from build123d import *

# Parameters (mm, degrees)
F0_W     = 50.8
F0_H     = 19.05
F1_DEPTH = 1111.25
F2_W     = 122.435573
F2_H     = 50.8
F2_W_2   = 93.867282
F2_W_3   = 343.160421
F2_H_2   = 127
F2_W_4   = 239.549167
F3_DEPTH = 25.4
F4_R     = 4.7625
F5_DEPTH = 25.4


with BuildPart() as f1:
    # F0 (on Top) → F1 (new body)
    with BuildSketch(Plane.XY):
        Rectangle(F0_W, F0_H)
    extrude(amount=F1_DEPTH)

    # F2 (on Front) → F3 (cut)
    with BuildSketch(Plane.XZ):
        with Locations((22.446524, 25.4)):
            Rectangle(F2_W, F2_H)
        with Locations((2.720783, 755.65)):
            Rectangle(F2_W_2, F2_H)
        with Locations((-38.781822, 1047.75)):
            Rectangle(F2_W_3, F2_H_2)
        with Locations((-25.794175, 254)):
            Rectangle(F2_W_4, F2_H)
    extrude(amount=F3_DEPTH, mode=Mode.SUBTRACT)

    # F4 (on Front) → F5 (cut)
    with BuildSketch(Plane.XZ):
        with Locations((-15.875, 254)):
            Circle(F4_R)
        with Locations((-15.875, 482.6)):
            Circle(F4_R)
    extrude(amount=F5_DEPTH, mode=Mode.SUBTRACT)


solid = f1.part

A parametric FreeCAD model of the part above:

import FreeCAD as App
import Part
import Sketcher
Q = App.Units.Quantity

doc = App.newDocument("Part")
body = doc.addObject("PartDesign::Body", "Body")

sketch1 = body.newObject("Sketcher::SketchObject", "Sketch")
sketch1.AttachmentSupport = (doc.getObject("XY_Plane"), [""])
sketch1.MapMode = "FlatFace"
sketch1.addGeometry([
    Part.LineSegment(App.Vector(-25, 10, 0), App.Vector(-25, -10, 0)),
    Part.LineSegment(App.Vector(-25, -10, 0), App.Vector(25, -10, 0)),
    Part.LineSegment(App.Vector(25, -10, 0), App.Vector(25, 10, 0)),
    Part.LineSegment(App.Vector(25, 10, 0), App.Vector(-25, 10, 0)),
], False)
sketch1.addConstraint([
    Sketcher.Constraint("Coincident", 0, 2, 1, 1),
    Sketcher.Constraint("Coincident", 1, 2, 2, 1),
    Sketcher.Constraint("Coincident", 2, 2, 3, 1),
    Sketcher.Constraint("Coincident", 3, 2, 0, 1),
    Sketcher.Constraint("Vertical", 0),
    Sketcher.Constraint("Horizontal", 1),
    Sketcher.Constraint("Vertical", 2),
    Sketcher.Constraint("Horizontal", 3),
    Sketcher.Constraint("Symmetric", 0, 2, 2, 2, -1, 1),
    Sketcher.Constraint("DistanceX", 1, 1, 1, 2, Q("2 in")),
    Sketcher.Constraint("DistanceY", 0, 2, 0, 1, Q("0.75 in")),
])
pad1 = body.newObject("PartDesign::Pad", "Pad")
pad1.Profile = sketch1
pad1.Length = Q("43.75 in")

sketch2 = body.newObject("Sketcher::SketchObject", "Sketch001")
sketch2.AttachmentSupport = (doc.getObject("XZ_Plane"), [""])
sketch2.MapMode = "FlatFace"
sketch2.addGeometry([
    Part.LineSegment(App.Vector(-39, 51, 0), App.Vector(-39, 0, 0)),
    Part.LineSegment(App.Vector(-39, 0, 0), App.Vector(84, 0, 0)),
    Part.LineSegment(App.Vector(84, 0, 0), App.Vector(84, 51, 0)),
    Part.LineSegment(App.Vector(84, 51, 0), App.Vector(-39, 51, 0)),
    Part.LineSegment(App.Vector(-44, 781, 0), App.Vector(-44, 730, 0)),
    Part.LineSegment(App.Vector(-44, 730, 0), App.Vector(50, 730, 0)),
    Part.LineSegment(App.Vector(50, 730, 0), App.Vector(50, 781, 0)),
    Part.LineSegment(App.Vector(50, 781, 0), App.Vector(-44, 781, 0)),
    Part.LineSegment(App.Vector(-210, 1111, 0), App.Vector(-210, 984, 0)),
    Part.LineSegment(App.Vector(-210, 984, 0), App.Vector(133, 984, 0)),
    Part.LineSegment(App.Vector(133, 984, 0), App.Vector(133, 1111, 0)),
    Part.LineSegment(App.Vector(133, 1111, 0), App.Vector(-210, 1111, 0)),
    Part.LineSegment(App.Vector(-146, 279, 0), App.Vector(-146, 229, 0)),
    Part.LineSegment(App.Vector(-146, 229, 0), App.Vector(94, 229, 0)),
    Part.LineSegment(App.Vector(94, 229, 0), App.Vector(94, 279, 0)),
    Part.LineSegment(App.Vector(94, 279, 0), App.Vector(-146, 279, 0)),
], False)
sketch2.addConstraint([
    Sketcher.Constraint("Coincident", 0, 2, 1, 1),
    Sketcher.Constraint("Coincident", 1, 2, 2, 1),
    Sketcher.Constraint("Coincident", 2, 2, 3, 1),
    Sketcher.Constraint("Coincident", 3, 2, 0, 1),
    Sketcher.Constraint("Coincident", 4, 2, 5, 1),
    Sketcher.Constraint("Coincident", 5, 2, 6, 1),
    Sketcher.Constraint("Coincident", 6, 2, 7, 1),
    Sketcher.Constraint("Coincident", 7, 2, 4, 1),
    Sketcher.Constraint("Coincident", 8, 2, 9, 1),
    Sketcher.Constraint("Coincident", 9, 2, 10, 1),
    Sketcher.Constraint("Coincident", 10, 2, 11, 1),
    Sketcher.Constraint("Coincident", 11, 2, 8, 1),
    Sketcher.Constraint("Coincident", 12, 2, 13, 1),
    Sketcher.Constraint("Coincident", 13, 2, 14, 1),
    Sketcher.Constraint("Coincident", 14, 2, 15, 1),
    Sketcher.Constraint("Coincident", 15, 2, 12, 1),
    Sketcher.Constraint("Vertical", 0),
    Sketcher.Constraint("Horizontal", 1),
    Sketcher.Constraint("Vertical", 2),
    Sketcher.Constraint("Horizontal", 3),
    Sketcher.Constraint("Vertical", 4),
    Sketcher.Constraint("Horizontal", 5),
    Sketcher.Constraint("Vertical", 6),
    Sketcher.Constraint("Horizontal", 7),
    Sketcher.Constraint("Vertical", 8),
    Sketcher.Constraint("Horizontal", 9),
    Sketcher.Constraint("Vertical", 10),
    Sketcher.Constraint("Horizontal", 11),
    Sketcher.Constraint("Vertical", 12),
    Sketcher.Constraint("Horizontal", 13),
    Sketcher.Constraint("Vertical", 14),
    Sketcher.Constraint("Horizontal", 15),
    Sketcher.Constraint("PointOnObject", 0, 2, -1),
    Sketcher.Constraint("Equal", 2, 4),
    Sketcher.Constraint("Equal", 6, 12),
    Sketcher.Constraint("DistanceY", 0, 2, 0, 1, Q("2 in")),
    Sketcher.Constraint("DistanceY", 8, 2, 8, 1, Q("5 in")),
    Sketcher.Constraint("DistanceY", -1, 1, 12, 2, Q("9 in")),
    Sketcher.Constraint("DistanceY", 7, 2, 8, 2, Q("8 in")),
    Sketcher.Constraint("DistanceY", -1, 1, 4, 2, Q("28.75 in")),
    Sketcher.Constraint("DistanceX", 5, 1, 5, 2, 93.867282),
    Sketcher.Constraint("DistanceX", 9, 1, 9, 2, 343.160421),
    Sketcher.Constraint("DistanceX", 12, 2, 4, 2, 101.355901),
    Sketcher.Constraint("DistanceX", 1, 1, 1, 2, 122.435573),
    Sketcher.Constraint("DistanceX", 13, 1, 13, 2, 239.549167),
    Sketcher.Constraint("DistanceX", -1, 1, 1, 2, 83.66431),
    Sketcher.Constraint("DistanceX", -1, 1, 9, 2, 132.798388),
    Sketcher.Constraint("DistanceX", 12, 2, -1, 1, 145.568759),
])
pocket1 = body.newObject("PartDesign::Pocket", "Pocket")
pocket1.Profile = sketch2
pocket1.Length = Q("1 in")
pocket1.Reversed = True

sketch3 = body.newObject("Sketcher::SketchObject", "Sketch002")
sketch3.AttachmentSupport = (doc.getObject("XZ_Plane"), [""])
sketch3.MapMode = "FlatFace"
sketch3.addGeometry([
    Part.Circle(App.Vector(-15.9, 254, 0), App.Vector(0, 0, 1), 4.8),
    Part.Circle(App.Vector(-15.9, 482.6, 0), App.Vector(0, 0, 1), 4.8),
], False)
sketch3.addConstraint([
    Sketcher.Constraint("Equal", 0, 1),
    Sketcher.Constraint("Vertical", 0, 3, 1, 3),
    Sketcher.Constraint("Diameter", 0, Q("0.375 in")),
    Sketcher.Constraint("DistanceY", -1, 1, 0, 3, Q("10 in")),
    Sketcher.Constraint("DistanceY", -1, 1, 1, 3, Q("19 in")),
    Sketcher.Constraint("DistanceX", 0, 3, -1, 1, Q("0.625 in")),
])
pocket2 = body.newObject("PartDesign::Pocket", "Pocket001")
pocket2.Profile = sketch3
pocket2.Length = Q("1 in")
pocket2.Reversed = True

doc.recompute()
